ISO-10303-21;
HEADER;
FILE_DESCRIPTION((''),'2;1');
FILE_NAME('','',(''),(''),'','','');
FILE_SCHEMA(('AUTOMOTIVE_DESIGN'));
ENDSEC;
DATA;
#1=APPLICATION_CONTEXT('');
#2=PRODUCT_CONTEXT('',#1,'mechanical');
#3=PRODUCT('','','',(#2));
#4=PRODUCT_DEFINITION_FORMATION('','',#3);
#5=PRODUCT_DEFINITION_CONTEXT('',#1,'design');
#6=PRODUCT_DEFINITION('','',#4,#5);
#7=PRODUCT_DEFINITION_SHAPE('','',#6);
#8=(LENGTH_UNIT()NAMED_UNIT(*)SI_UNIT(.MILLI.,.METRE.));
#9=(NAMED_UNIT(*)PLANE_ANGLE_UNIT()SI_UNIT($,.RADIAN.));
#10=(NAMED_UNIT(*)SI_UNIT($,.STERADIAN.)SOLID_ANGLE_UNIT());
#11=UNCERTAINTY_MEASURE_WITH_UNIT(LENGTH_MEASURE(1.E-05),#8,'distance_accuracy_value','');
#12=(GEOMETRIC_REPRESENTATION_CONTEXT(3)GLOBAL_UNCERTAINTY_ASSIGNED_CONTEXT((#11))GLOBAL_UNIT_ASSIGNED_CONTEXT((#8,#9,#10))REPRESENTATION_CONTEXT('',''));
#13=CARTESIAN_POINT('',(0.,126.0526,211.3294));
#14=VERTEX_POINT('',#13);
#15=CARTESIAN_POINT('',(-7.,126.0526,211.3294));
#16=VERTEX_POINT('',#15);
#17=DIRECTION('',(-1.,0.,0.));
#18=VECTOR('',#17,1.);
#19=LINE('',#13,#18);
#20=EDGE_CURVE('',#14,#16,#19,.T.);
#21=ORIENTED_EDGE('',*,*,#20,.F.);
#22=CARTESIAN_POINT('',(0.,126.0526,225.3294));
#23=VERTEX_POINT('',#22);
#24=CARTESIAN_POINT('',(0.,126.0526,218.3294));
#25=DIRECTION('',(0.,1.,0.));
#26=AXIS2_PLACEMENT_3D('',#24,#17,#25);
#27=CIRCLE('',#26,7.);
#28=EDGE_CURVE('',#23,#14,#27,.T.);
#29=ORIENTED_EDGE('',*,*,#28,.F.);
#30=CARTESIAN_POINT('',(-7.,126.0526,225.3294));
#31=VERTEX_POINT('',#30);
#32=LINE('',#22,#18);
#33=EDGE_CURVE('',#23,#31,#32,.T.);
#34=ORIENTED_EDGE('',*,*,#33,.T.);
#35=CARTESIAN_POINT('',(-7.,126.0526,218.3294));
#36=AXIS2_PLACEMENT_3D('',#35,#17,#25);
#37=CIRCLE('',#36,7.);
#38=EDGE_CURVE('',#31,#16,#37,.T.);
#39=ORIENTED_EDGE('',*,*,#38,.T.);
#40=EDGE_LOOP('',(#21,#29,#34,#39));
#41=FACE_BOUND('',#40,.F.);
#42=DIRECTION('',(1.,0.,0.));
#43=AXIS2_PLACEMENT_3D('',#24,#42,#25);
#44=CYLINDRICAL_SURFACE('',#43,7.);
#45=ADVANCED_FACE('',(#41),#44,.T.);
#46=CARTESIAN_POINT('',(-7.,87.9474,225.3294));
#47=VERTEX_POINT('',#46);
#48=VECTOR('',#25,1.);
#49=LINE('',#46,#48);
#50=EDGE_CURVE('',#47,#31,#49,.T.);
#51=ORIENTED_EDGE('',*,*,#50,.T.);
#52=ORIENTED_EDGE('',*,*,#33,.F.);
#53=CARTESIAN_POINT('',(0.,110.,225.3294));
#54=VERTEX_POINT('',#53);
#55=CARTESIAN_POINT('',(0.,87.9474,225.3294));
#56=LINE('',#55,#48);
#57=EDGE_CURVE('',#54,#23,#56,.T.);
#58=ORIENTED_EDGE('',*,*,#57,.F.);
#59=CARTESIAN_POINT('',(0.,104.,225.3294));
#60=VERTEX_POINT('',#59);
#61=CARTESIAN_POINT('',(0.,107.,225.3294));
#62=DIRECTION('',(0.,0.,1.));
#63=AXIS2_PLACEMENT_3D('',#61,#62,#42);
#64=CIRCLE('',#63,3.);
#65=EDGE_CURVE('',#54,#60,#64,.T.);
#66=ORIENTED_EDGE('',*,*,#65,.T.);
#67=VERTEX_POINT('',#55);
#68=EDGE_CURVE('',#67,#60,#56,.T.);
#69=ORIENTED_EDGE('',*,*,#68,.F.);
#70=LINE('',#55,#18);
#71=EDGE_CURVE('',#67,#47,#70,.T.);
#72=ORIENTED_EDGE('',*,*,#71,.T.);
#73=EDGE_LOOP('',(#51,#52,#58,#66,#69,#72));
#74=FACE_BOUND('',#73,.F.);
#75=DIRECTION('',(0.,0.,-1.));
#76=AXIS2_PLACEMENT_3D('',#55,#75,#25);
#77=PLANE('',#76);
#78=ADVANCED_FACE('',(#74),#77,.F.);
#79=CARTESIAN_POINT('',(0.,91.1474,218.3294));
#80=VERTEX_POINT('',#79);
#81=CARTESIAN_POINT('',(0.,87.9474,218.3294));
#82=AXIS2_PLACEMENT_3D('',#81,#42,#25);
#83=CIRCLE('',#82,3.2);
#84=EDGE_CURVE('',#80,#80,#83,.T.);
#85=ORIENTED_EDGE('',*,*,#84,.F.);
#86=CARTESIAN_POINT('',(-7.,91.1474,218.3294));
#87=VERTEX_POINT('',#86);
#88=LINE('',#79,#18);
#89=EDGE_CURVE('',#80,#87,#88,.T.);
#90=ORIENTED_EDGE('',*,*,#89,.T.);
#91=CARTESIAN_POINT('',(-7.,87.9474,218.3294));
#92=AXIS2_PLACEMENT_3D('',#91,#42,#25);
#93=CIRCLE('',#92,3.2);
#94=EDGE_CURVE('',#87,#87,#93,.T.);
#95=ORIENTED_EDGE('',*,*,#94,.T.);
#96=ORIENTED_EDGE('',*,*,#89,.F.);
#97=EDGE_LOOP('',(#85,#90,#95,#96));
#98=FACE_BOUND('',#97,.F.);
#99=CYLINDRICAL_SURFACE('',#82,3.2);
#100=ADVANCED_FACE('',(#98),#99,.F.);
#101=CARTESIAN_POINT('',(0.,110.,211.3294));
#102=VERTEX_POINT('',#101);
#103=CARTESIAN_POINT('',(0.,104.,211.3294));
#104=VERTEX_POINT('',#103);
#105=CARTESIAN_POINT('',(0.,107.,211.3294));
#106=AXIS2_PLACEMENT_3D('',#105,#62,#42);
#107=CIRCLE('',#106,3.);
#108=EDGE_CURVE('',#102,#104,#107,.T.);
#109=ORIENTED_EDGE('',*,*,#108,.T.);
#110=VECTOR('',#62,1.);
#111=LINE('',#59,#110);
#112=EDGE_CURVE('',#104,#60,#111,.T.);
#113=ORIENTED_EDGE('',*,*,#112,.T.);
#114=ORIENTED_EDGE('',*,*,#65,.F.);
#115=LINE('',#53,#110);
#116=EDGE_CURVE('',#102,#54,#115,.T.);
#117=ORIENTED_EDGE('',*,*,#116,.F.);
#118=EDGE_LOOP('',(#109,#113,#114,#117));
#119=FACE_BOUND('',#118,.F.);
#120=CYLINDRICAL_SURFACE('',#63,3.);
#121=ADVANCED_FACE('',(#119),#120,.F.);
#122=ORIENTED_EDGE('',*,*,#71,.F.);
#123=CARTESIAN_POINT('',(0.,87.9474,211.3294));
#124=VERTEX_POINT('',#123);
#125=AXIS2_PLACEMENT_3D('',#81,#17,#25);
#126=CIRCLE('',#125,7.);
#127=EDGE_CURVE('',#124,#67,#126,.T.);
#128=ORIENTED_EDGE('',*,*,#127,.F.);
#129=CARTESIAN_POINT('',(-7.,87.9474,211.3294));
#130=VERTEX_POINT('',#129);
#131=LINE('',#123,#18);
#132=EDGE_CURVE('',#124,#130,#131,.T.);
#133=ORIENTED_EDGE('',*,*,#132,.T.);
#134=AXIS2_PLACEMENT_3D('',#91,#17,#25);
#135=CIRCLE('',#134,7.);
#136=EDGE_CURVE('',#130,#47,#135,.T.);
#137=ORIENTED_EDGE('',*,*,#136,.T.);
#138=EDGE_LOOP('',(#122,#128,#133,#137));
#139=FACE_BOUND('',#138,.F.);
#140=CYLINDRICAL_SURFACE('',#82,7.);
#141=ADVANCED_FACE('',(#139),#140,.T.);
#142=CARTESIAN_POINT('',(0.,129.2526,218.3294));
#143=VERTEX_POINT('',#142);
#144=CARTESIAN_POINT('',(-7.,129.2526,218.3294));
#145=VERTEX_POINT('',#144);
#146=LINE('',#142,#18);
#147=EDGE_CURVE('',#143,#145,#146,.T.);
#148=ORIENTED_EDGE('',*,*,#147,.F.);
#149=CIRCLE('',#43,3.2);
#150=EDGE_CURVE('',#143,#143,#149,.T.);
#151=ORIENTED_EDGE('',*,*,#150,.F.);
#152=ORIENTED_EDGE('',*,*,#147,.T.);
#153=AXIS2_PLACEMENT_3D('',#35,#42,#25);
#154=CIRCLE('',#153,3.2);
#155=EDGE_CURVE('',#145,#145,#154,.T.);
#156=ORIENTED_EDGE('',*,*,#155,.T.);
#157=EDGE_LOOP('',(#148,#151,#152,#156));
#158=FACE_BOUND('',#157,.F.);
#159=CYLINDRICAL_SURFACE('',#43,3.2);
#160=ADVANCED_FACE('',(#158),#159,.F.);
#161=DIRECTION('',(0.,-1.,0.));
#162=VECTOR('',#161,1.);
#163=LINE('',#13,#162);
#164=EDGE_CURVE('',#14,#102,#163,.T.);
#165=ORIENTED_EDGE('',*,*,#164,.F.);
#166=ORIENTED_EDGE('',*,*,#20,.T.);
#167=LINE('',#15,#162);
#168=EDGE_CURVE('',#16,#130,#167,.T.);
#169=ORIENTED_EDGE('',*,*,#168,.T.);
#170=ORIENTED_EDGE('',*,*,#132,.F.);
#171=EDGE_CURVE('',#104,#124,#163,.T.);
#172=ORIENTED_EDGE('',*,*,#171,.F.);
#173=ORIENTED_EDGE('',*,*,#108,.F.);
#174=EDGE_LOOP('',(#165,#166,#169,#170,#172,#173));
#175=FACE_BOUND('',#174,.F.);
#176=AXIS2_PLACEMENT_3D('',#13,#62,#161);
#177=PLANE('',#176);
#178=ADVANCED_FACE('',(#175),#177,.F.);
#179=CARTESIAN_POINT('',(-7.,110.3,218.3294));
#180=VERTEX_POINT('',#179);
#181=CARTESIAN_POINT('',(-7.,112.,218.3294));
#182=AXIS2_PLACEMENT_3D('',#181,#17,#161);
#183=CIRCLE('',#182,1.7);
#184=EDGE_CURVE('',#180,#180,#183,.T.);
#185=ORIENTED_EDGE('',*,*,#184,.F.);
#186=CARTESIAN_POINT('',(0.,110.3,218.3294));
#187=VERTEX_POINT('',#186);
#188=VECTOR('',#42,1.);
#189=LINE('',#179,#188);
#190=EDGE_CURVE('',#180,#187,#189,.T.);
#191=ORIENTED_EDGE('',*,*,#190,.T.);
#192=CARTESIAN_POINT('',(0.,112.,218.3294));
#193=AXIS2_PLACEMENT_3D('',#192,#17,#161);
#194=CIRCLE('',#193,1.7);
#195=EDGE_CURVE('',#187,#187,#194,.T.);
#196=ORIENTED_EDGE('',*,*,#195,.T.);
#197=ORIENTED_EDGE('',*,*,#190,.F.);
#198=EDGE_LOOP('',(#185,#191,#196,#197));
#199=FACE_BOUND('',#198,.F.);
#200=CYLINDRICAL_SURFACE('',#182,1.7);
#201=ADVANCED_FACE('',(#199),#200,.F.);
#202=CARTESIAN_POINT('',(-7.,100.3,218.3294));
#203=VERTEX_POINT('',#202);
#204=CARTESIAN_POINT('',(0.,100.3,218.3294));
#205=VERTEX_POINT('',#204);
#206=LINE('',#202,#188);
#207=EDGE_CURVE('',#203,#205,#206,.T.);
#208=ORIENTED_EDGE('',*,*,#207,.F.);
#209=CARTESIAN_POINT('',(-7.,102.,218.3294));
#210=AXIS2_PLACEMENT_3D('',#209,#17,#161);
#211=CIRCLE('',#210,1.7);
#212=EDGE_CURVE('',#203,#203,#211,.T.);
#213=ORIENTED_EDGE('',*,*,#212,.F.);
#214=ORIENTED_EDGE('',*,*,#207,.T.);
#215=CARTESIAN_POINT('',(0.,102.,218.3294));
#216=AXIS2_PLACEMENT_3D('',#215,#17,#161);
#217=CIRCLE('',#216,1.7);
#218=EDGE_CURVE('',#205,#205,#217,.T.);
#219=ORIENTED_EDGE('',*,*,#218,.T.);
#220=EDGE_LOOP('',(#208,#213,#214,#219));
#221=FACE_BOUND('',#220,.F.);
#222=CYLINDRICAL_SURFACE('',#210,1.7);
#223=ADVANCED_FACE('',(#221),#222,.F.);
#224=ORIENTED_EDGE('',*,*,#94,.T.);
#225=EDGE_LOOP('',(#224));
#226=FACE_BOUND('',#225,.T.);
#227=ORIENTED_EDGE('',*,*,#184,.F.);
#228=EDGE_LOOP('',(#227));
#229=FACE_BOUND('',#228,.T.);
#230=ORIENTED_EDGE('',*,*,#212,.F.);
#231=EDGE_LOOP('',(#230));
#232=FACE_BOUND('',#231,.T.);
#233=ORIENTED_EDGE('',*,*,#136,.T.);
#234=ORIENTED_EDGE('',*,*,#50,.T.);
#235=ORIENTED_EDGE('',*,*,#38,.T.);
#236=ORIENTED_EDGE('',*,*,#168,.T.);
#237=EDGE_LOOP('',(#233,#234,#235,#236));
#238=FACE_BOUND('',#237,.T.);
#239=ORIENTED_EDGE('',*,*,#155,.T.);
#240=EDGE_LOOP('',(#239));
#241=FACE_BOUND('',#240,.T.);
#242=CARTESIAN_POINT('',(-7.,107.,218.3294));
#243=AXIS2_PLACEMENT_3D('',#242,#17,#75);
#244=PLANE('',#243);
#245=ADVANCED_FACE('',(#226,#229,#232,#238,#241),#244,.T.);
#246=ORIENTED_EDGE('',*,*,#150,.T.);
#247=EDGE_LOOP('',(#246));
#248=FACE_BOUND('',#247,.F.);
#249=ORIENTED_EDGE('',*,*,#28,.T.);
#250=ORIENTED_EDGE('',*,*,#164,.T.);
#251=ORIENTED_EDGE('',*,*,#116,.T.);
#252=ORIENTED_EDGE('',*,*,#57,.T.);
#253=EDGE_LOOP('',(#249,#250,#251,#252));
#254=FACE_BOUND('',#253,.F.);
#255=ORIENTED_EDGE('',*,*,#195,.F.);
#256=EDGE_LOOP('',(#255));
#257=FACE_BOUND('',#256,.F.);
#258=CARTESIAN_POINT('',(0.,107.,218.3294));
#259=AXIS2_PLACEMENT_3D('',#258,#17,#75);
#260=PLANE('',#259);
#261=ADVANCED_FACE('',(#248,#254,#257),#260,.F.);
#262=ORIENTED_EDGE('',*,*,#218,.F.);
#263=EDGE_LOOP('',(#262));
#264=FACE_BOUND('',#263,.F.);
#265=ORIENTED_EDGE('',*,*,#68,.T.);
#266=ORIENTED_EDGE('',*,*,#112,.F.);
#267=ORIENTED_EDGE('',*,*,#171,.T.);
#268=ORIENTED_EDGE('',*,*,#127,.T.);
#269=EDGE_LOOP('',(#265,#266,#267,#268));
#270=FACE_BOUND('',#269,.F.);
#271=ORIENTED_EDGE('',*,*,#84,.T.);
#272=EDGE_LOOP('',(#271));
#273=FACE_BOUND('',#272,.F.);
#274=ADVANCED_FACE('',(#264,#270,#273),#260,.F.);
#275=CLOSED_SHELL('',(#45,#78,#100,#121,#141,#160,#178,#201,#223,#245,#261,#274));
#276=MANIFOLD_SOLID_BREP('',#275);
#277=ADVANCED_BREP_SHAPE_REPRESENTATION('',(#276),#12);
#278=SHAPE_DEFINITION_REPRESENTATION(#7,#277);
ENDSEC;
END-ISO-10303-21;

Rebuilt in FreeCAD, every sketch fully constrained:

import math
import FreeCAD as App
import Part
import Sketcher

V = App.Vector

doc = App.newDocument("Part")
params = doc.addObject("Spreadsheet::Sheet", "Params")
for row, (alias, value) in enumerate([
    ("sketch1_radius", "7 mm"),
    ("sketch1_diameter", "6.4 mm"),
    ("pad1_length", "7 mm"),
    ("sketch2_diameter", "6 mm"),
    ("sketch3_diameter", "3.4 mm"),
], start=1):
    params.set(f"A{row}", alias)
    params.set(f"B{row}", "=" + value)
    params.setAlias(f"B{row}", alias)

body = doc.addObject("PartDesign::Body", "Body")

# Sketch on YZ plane
sketch1 = body.newObject("Sketcher::SketchObject", "Sketch")
sketch1.AttachmentSupport = (doc.getObject("YZ_Plane"), [""])
sketch1.MapMode = "FlatFace"
sketch1.addGeometry([
    Part.LineSegment(V(126.1, 225.3, 0), V(87.9, 225.3, 0)),  # 0
    Part.ArcOfCircle(Part.Circle(V(87.9, 218.3, 0), V(0, 0, 1), 7), math.radians(90), math.radians(270)),  # 1
    Part.LineSegment(V(87.9, 211.3, 0), V(126.1, 211.3, 0)),  # 2
    Part.ArcOfCircle(Part.Circle(V(126.1, 218.3, 0), V(0, 0, 1), 7), math.radians(-90), math.radians(90)),  # 3
    Part.Circle(V(87.9, 218.3, 0), V(0, 0, 1), 3.2),  # 4
    Part.Circle(V(126.1, 218.3, 0), V(0, 0, 1), 3.2),  # 5
], False)
sketch1.addConstraint([
    Sketcher.Constraint("Tangent", 0, 2, 1, 1),
    Sketcher.Constraint("Tangent", 1, 2, 2, 1),
    Sketcher.Constraint("Tangent", 2, 2, 3, 1),
    Sketcher.Constraint("Tangent", 3, 2, 0, 1),
    Sketcher.Constraint("Horizontal", 0),
    Sketcher.Constraint("Horizontal", 2),
    Sketcher.Constraint("Coincident", 4, 3, 1, 3),
    Sketcher.Constraint("Coincident", 5, 3, 3, 3),
    Sketcher.Constraint("Equal", 4, 5),
    Sketcher.Constraint("Radius", 1, 7.0),
    Sketcher.Constraint("Diameter", 4, 6.4),
    Sketcher.Constraint("DistanceX", 0, 2, 0, 1, 38.1052),
    Sketcher.Constraint("DistanceX", -1, 1, 1, 3, 87.9474),
    Sketcher.Constraint("DistanceY", -1, 1, 1, 3, 218.3294),
])
sketch1.setExpression("Constraints[9]", "Params.sketch1_radius")
sketch1.setExpression("Constraints[10]", "Params.sketch1_diameter")
pad1 = body.newObject("PartDesign::Pad", "Pad")
pad1.Profile = sketch1
pad1.setExpression("Length", "Params.pad1_length")
pad1.Reversed = True

# Sketch on XY plane
sketch2 = body.newObject("Sketcher::SketchObject", "Sketch001")
sketch2.AttachmentSupport = (doc.getObject("XY_Plane"), [""])
sketch2.MapMode = "FlatFace"
sketch2.AttachmentOffset = App.Placement(V(0, 0, 225.3294), App.Rotation())
sketch2.addGeometry(Part.Circle(V(0, 107, 0), V(0, 0, 1), 3), False)
sketch2.addConstraint([
    Sketcher.Constraint("PointOnObject", 0, 3, -2),
    Sketcher.Constraint("Diameter", 0, 6.0),
    Sketcher.Constraint("DistanceY", -1, 1, 0, 3, 107.0),
])
sketch2.setExpression("Constraints[1]", "Params.sketch2_diameter")
pocket1 = body.newObject("PartDesign::Pocket", "Pocket")
pocket1.Profile = sketch2
pocket1.Type = "ThroughAll"

# Sketch on YZ plane
sketch3 = body.newObject("Sketcher::SketchObject", "Sketch002")
sketch3.AttachmentSupport = (doc.getObject("YZ_Plane"), [""])
sketch3.MapMode = "FlatFace"
sketch3.AttachmentOffset = App.Placement(V(0, 0, -7), App.Rotation())
sketch3.addGeometry([
    Part.Circle(V(112, 218.3, 0), V(0, 0, 1), 1.7),
    Part.Circle(V(102, 218.3, 0), V(0, 0, 1), 1.7),
], False)
sketch3.addConstraint([
    Sketcher.Constraint("Equal", 0, 1),
    Sketcher.Constraint("Horizontal", 0, 3, 1, 3),
    Sketcher.Constraint("Diameter", 0, 3.4),
    Sketcher.Constraint("DistanceX", -1, 1, 0, 3, 112.0),
    Sketcher.Constraint("DistanceX", -1, 1, 1, 3, 102.0),
    Sketcher.Constraint("DistanceY", -1, 1, 0, 3, 218.3294),
])
sketch3.setExpression("Constraints[2]", "Params.sketch3_diameter")
pocket2 = body.newObject("PartDesign::Pocket", "Pocket001")
pocket2.Profile = sketch3
pocket2.Type = "ThroughAll"
pocket2.Reversed = True

doc.recompute()
